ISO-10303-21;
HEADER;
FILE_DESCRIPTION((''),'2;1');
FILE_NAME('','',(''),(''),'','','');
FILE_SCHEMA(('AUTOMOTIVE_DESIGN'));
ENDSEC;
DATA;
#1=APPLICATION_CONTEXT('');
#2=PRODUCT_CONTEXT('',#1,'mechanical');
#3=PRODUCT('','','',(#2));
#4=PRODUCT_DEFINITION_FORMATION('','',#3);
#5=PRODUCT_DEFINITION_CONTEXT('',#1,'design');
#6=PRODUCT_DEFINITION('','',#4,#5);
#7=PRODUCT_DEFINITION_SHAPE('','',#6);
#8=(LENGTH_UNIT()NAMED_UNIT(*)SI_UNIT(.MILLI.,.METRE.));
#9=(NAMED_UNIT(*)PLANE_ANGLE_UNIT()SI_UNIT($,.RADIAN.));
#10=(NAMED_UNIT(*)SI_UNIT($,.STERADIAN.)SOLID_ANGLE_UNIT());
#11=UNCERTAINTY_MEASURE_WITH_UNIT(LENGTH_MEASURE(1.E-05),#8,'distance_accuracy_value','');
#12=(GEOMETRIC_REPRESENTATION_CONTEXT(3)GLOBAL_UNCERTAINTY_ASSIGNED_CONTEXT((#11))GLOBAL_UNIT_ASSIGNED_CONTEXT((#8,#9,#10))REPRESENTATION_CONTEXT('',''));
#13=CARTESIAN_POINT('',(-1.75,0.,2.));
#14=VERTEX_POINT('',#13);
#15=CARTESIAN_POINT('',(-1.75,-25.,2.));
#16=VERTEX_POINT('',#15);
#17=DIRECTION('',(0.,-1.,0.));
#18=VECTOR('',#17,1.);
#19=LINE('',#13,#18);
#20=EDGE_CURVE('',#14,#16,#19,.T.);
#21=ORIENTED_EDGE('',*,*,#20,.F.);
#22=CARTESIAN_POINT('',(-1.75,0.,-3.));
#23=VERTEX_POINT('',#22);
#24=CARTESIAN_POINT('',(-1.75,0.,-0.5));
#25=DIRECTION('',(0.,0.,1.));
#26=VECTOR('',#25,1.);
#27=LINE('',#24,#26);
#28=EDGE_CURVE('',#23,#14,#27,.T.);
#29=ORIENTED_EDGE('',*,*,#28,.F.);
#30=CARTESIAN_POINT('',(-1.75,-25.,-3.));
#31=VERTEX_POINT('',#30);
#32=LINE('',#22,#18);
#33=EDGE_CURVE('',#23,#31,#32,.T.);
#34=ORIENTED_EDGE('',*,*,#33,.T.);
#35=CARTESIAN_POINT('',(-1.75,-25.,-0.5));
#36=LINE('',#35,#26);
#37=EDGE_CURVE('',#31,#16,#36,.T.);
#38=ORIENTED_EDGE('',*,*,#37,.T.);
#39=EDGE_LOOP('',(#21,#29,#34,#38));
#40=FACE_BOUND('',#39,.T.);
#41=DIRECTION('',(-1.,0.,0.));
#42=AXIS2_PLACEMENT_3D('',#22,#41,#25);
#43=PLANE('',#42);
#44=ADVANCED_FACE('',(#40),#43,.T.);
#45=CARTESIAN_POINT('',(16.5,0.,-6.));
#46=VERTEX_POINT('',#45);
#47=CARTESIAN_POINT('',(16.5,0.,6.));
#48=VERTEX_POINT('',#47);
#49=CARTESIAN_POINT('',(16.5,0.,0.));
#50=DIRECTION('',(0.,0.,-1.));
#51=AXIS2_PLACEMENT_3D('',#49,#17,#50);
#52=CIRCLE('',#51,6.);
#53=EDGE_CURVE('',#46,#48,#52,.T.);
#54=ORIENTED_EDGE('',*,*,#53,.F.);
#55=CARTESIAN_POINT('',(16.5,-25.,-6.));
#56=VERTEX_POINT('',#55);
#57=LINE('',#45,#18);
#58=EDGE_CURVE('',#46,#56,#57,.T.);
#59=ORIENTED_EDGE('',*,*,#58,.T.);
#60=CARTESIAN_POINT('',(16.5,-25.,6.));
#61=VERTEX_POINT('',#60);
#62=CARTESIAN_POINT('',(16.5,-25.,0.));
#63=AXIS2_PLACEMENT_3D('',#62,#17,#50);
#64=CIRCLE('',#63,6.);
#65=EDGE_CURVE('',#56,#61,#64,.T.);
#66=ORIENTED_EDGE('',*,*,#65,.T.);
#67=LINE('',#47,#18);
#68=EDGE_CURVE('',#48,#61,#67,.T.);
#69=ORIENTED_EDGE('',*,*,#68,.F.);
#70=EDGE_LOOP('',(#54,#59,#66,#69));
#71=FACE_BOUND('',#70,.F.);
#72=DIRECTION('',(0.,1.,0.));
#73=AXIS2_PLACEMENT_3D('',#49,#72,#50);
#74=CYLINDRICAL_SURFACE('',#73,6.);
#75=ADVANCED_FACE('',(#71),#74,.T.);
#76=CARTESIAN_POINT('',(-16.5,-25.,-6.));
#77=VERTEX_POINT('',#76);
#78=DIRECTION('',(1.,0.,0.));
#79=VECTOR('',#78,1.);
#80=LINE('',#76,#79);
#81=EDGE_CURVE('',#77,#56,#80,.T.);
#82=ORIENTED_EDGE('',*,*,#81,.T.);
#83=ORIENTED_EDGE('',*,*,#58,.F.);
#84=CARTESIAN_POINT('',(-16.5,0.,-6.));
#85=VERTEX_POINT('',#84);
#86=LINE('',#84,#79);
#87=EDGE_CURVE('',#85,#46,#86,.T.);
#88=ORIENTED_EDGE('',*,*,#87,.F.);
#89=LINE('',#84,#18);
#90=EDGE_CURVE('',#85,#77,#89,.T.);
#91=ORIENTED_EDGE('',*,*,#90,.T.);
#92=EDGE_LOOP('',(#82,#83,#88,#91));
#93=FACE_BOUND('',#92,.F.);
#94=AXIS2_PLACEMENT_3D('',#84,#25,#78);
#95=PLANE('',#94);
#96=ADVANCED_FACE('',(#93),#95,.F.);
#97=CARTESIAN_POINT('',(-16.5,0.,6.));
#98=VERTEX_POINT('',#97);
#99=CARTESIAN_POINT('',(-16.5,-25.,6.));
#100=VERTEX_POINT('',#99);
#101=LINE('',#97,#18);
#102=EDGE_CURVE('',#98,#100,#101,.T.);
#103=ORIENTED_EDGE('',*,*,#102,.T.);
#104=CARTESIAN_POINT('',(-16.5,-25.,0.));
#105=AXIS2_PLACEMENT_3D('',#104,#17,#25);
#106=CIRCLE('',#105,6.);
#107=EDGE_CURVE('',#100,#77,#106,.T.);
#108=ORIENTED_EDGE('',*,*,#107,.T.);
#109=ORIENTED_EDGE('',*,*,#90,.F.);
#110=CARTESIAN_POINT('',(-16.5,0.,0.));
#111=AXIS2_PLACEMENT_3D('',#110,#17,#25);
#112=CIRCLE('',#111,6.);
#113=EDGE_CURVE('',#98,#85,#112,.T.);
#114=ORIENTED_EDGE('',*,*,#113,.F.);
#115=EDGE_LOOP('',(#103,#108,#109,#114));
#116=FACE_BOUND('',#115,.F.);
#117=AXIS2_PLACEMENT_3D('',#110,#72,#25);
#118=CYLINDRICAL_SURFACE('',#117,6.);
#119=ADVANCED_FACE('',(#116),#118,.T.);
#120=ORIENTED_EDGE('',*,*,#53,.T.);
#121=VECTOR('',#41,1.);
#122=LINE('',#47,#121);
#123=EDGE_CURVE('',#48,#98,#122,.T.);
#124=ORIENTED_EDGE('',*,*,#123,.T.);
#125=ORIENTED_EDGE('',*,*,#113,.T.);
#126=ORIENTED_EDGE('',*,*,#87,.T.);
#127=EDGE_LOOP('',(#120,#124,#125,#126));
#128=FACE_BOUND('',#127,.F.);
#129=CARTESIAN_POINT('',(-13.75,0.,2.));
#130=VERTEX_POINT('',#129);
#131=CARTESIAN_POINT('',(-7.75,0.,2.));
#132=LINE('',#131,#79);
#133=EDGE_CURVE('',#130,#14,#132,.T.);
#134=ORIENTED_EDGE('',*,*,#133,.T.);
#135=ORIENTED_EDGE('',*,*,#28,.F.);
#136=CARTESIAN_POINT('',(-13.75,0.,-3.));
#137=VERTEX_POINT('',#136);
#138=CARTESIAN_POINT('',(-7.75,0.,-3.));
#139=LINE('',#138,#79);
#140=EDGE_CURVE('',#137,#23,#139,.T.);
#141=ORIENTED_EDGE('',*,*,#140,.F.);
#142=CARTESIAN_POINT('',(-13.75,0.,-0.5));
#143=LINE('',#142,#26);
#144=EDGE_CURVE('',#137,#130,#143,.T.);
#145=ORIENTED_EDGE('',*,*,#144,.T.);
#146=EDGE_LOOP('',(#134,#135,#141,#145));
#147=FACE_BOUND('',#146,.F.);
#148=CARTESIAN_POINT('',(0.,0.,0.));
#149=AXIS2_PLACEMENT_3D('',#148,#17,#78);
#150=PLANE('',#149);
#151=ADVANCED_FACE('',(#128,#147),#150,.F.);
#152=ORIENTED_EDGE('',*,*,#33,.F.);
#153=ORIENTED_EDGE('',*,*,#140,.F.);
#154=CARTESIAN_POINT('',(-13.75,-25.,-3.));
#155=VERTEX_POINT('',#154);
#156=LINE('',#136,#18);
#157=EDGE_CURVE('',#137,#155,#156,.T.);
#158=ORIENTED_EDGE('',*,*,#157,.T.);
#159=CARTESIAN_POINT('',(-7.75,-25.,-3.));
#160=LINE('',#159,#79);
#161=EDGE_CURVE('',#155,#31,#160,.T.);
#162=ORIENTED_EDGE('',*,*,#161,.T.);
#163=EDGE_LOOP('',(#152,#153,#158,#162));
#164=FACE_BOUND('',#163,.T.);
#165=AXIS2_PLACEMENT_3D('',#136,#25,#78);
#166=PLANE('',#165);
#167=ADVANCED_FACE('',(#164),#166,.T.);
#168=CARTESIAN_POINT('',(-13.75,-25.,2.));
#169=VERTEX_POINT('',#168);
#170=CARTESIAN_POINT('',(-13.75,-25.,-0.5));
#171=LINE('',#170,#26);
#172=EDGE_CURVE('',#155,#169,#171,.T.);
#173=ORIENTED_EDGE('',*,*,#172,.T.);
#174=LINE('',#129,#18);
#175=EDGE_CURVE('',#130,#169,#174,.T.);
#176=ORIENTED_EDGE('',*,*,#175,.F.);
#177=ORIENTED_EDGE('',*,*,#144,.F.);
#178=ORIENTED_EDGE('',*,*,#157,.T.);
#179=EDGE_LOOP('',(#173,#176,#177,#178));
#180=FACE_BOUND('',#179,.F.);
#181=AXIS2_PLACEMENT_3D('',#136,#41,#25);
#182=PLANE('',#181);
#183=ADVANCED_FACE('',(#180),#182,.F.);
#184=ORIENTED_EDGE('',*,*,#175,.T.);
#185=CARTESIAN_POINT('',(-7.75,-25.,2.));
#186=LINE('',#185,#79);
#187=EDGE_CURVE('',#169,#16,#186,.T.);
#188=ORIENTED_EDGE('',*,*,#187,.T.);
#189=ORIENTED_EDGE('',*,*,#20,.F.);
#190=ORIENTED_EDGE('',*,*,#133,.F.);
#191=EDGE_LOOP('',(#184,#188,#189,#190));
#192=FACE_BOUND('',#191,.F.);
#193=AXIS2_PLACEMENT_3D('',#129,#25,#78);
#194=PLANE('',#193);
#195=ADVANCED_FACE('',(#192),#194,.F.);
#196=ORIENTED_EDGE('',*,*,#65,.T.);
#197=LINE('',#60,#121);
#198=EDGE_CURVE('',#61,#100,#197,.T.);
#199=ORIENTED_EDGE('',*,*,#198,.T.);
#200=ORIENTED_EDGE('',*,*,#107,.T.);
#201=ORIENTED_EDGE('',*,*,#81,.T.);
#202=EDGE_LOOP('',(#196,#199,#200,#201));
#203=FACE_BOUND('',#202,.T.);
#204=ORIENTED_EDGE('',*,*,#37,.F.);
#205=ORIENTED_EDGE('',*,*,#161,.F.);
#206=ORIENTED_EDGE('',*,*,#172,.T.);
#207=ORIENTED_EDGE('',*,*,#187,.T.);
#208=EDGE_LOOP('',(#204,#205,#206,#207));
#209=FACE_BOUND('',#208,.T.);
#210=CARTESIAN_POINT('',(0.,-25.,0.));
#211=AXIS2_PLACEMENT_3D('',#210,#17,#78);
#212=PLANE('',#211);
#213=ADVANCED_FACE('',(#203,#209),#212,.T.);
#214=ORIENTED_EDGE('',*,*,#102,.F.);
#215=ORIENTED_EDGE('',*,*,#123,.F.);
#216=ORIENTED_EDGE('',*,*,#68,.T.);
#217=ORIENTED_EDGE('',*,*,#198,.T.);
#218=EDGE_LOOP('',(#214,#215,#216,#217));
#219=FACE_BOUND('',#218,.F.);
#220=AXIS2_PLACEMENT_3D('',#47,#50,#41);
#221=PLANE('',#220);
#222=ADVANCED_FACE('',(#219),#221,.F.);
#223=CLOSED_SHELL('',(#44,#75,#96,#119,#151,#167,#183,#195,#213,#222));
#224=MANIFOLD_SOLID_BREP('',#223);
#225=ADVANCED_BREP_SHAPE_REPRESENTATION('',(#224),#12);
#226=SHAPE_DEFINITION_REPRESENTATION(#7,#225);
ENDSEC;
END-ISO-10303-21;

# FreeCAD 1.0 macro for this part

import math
import FreeCAD as App
import Part
import Sketcher
from FreeCAD import Vector
Q = App.Units.Quantity

doc = App.newDocument("Part")
body = doc.addObject("PartDesign::Body", "Body")

sketch1 = doc.addObject("Sketcher::SketchObject", "Sketch")
body.addObject(sketch1)
sketch1.AttachmentSupport = (doc.XZ_Plane, [""])
sketch1.MapMode = "FlatFace"
sketch1.addGeometry(Part.LineSegment(Vector(16, 6, 0), Vector(-16, 6, 0)), False)
sketch1.addGeometry(Part.ArcOfCircle(Part.Circle(Vector(-16, 0, 0), Vector(0, 0, 1), 6), math.radians(90), math.radians(270)), False)
sketch1.addGeometry(Part.LineSegment(Vector(-16, -6, 0), Vector(16, -6, 0)), False)
sketch1.addGeometry(Part.ArcOfCircle(Part.Circle(Vector(16, 0, 0), Vector(0, 0, 1), 6), math.radians(-90), math.radians(90)), False)
sketch1.addGeometry(Part.LineSegment(Vector(-2, -3, 0), Vector(-14, -3, 0)), False)
sketch1.addGeometry(Part.LineSegment(Vector(-14, -3, 0), Vector(-14, 2, 0)), False)
sketch1.addGeometry(Part.LineSegment(Vector(-14, 2, 0), Vector(-2, 2, 0)), False)
sketch1.addGeometry(Part.LineSegment(Vector(-2, 2, 0), Vector(-2, -3, 0)), False)
sketch1.addConstraint(Sketcher.Constraint("Tangent", 0, 2, 1, 1))
sketch1.addConstraint(Sketcher.Constraint("Tangent", 1, 2, 2, 1))
sketch1.addConstraint(Sketcher.Constraint("Tangent", 2, 2, 3, 1))
sketch1.addConstraint(Sketcher.Constraint("Tangent", 3, 2, 0, 1))
sketch1.addConstraint(Sketcher.Constraint("Coincident", 4, 2, 5, 1))
sketch1.addConstraint(Sketcher.Constraint("Coincident", 5, 2, 6, 1))
sketch1.addConstraint(Sketcher.Constraint("Coincident", 6, 2, 7, 1))
sketch1.addConstraint(Sketcher.Constraint("Coincident", 7, 2, 4, 1))
sketch1.addConstraint(Sketcher.Constraint("Horizontal", 0))
sketch1.addConstraint(Sketcher.Constraint("Horizontal", 2))
sketch1.addConstraint(Sketcher.Constraint("Horizontal", 4))
sketch1.addConstraint(Sketcher.Constraint("Vertical", 5))
sketch1.addConstraint(Sketcher.Constraint("Horizontal", 6))
sketch1.addConstraint(Sketcher.Constraint("Vertical", 7))
sketch1.addConstraint(Sketcher.Constraint("Symmetric", 1, 3, 3, 3, -1, 1))
sketch1.addConstraint(Sketcher.Constraint("Radius", 1, Q("6 mm")))
sketch1.addConstraint(Sketcher.Constraint("DistanceX", 0, 2, 0, 1, Q("33 mm")))
sketch1.addConstraint(Sketcher.Constraint("DistanceX", 4, 2, 4, 1, Q("12 mm")))
sketch1.addConstraint(Sketcher.Constraint("DistanceY", 5, 1, 5, 2, Q("5 mm")))
sketch1.addConstraint(Sketcher.Constraint("DistanceY", 4, 2, -1, 1, Q("3 mm")))
sketch1.addConstraint(Sketcher.Constraint("DistanceX", 4, 2, -1, 1, Q("13.75 mm")))
pad1 = doc.addObject("PartDesign::Pad", "Pad")
body.addObject(pad1)
pad1.Profile = sketch1
pad1.Length = 25

doc.recompute()
